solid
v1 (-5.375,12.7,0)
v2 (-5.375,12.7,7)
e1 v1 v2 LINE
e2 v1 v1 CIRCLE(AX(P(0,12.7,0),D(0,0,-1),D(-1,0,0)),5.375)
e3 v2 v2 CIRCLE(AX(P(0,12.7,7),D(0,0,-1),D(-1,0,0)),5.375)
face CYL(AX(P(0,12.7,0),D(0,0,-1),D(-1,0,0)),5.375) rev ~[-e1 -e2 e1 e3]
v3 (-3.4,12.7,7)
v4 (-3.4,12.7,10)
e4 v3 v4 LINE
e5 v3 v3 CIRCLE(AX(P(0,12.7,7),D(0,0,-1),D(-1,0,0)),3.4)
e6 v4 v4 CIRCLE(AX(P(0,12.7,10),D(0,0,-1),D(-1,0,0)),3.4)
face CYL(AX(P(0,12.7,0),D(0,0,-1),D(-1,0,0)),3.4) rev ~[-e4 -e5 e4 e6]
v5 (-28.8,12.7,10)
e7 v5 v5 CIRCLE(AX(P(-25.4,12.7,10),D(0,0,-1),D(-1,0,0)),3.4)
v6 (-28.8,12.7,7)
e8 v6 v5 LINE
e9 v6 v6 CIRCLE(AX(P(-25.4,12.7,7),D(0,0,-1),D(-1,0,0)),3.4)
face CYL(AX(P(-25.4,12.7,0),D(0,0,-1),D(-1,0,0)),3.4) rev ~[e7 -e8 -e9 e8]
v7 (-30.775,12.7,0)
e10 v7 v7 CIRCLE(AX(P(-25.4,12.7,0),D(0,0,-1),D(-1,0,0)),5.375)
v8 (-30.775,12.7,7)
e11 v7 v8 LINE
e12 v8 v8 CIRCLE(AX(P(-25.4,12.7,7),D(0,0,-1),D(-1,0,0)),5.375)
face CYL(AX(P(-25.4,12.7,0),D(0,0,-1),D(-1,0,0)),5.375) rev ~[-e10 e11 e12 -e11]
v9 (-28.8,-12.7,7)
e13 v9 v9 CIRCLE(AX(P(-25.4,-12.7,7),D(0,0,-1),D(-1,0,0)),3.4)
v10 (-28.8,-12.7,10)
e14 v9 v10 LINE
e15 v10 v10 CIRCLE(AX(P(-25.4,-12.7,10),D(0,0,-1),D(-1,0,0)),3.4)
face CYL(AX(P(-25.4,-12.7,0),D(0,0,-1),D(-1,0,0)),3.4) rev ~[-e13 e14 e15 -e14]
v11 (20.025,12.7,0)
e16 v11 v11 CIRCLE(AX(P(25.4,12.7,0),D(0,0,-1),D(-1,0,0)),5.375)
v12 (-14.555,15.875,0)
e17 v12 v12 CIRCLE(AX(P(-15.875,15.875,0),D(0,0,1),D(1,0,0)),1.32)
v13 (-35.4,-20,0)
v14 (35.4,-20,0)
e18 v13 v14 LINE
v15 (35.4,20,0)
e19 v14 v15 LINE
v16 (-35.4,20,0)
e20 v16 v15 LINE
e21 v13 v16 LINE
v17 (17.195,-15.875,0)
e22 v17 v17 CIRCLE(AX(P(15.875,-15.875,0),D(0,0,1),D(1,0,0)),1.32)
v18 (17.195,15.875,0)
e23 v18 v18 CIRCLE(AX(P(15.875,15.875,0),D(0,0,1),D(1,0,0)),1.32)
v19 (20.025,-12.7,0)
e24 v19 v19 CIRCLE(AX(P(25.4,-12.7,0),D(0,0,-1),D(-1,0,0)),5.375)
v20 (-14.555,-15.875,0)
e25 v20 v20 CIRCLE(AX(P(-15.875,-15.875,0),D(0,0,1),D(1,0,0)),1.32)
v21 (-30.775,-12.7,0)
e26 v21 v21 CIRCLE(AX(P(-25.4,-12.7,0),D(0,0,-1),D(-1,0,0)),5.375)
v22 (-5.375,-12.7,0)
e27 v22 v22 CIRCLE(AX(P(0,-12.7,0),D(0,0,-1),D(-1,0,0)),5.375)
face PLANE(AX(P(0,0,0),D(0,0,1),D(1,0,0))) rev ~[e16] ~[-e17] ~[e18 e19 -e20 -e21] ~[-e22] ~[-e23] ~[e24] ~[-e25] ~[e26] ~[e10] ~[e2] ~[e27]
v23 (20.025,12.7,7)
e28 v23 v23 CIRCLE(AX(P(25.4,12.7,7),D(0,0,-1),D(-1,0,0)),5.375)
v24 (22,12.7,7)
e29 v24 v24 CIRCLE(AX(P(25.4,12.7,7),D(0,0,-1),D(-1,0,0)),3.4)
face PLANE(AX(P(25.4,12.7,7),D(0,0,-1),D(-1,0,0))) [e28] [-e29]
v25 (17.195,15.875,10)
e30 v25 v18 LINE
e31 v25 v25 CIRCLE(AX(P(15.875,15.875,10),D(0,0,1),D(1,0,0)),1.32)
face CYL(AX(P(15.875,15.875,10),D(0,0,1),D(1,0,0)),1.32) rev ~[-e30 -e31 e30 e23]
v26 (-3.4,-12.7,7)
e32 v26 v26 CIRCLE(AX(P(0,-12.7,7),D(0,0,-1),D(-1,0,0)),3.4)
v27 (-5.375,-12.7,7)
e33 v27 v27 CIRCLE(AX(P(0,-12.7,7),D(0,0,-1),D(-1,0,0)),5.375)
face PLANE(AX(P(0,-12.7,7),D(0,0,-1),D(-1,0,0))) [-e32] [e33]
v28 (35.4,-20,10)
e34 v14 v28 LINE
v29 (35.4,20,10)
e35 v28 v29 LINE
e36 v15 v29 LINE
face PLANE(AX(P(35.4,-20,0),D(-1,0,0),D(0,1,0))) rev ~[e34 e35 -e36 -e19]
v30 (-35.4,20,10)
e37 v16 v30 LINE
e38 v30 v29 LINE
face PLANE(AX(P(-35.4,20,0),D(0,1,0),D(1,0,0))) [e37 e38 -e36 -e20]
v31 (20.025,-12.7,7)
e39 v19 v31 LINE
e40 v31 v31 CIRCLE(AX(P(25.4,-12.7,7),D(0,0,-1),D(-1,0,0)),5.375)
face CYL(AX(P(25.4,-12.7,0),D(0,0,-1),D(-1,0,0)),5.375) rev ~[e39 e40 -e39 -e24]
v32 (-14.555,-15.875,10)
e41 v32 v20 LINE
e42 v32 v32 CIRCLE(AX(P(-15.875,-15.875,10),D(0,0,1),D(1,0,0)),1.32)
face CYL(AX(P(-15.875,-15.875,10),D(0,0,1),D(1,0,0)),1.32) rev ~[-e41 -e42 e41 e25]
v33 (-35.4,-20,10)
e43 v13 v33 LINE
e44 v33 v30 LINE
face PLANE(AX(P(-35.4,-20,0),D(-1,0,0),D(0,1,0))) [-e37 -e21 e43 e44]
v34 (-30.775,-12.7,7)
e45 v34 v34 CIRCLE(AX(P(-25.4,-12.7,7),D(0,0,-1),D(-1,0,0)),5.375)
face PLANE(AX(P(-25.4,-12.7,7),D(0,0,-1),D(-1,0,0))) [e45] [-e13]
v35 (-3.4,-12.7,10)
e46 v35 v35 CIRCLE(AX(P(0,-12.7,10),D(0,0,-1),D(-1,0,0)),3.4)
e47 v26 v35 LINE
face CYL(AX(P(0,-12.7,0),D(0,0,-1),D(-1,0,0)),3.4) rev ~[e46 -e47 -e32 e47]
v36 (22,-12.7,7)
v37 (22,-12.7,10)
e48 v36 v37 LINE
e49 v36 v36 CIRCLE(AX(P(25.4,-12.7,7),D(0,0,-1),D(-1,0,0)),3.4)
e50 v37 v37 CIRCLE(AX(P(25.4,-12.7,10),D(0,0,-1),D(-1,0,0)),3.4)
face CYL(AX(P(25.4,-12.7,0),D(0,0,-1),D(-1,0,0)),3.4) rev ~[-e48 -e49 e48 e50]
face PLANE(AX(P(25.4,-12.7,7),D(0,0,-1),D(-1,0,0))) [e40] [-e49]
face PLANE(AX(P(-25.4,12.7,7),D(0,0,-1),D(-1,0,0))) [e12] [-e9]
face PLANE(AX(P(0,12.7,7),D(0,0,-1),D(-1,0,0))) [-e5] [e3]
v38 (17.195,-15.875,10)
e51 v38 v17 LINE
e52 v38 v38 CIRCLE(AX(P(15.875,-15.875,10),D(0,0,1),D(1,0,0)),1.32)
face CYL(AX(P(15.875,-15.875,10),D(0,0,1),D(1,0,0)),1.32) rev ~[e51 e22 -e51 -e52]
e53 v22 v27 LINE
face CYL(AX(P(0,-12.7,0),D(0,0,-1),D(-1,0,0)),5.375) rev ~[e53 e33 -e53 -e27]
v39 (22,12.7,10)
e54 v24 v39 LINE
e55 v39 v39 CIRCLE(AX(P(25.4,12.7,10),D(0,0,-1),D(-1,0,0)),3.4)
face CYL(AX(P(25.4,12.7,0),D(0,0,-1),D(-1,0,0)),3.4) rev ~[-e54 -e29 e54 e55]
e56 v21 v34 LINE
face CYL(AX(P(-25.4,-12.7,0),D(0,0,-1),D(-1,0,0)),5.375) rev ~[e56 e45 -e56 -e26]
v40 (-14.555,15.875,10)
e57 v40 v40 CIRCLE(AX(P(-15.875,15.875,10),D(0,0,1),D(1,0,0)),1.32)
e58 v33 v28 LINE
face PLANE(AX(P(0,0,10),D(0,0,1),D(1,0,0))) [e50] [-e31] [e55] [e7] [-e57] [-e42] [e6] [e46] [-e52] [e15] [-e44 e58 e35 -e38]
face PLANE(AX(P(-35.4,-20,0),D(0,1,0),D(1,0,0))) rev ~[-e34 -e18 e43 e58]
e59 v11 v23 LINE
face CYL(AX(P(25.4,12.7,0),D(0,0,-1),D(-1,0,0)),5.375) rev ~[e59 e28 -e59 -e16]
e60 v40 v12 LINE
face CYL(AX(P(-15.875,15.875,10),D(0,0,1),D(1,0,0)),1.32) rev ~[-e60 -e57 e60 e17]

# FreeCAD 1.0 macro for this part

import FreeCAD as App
import Part
import Sketcher

doc = App.newDocument("Part")
params = doc.addObject("Spreadsheet::Sheet", "Params")
for row, (alias, value) in enumerate([
    ("sketch1_height", "40 mm"),
    ("sketch1_width", "70.8 mm"),
    ("pad1_length", "10 mm"),
    ("sketch2_diameter", "2.64 mm"),
    ("sketch3_diameter", "6.8 mm"),
    ("sketch4_diameter", "10.75 mm"),
    ("pocket3_length", "7 mm"),
], start=1):
    params.set(f"A{row}", alias)
    params.set(f"B{row}", "=" + value)
    params.setAlias(f"B{row}", alias)

body = doc.addObject("PartDesign::Body", "Body")

sketch1 = body.newObject("Sketcher::SketchObject", "Sketch")
sketch1.AttachmentSupport = (doc.getObject("XY_Plane"), [""])
sketch1.MapMode = "FlatFace"
sketch1.addGeometry(Part.LineSegment(App.Vector(-35.4, 20, 0), App.Vector(-35.4, -20, 0)), False)
sketch1.addGeometry(Part.LineSegment(App.Vector(-35.4, -20, 0), App.Vector(35.4, -20, 0)), False)
sketch1.addGeometry(Part.LineSegment(App.Vector(35.4, -20, 0), App.Vector(35.4, 20, 0)), False)
sketch1.addGeometry(Part.LineSegment(App.Vector(35.4, 20, 0), App.Vector(-35.4, 20, 0)), False)
sketch1.addConstraint(Sketcher.Constraint("Coincident", 0, 2, 1, 1))
sketch1.addConstraint(Sketcher.Constraint("Coincident", 1, 2, 2, 1))
sketch1.addConstraint(Sketcher.Constraint("Coincident", 2, 2, 3, 1))
sketch1.addConstraint(Sketcher.Constraint("Coincident", 3, 2, 0, 1))
sketch1.addConstraint(Sketcher.Constraint("Vertical", 0))
sketch1.addConstraint(Sketcher.Constraint("Horizontal", 1))
sketch1.addConstraint(Sketcher.Constraint("Vertical", 2))
sketch1.addConstraint(Sketcher.Constraint("Horizontal", 3))
sketch1.addConstraint(Sketcher.Constraint("Symmetric", 0, 2, 2, 2, -1, 1))
sketch1.addConstraint(Sketcher.Constraint("DistanceY", 0, 2, 0, 1, 40.0))
sketch1.addConstraint(Sketcher.Constraint("DistanceX", 1, 1, 1, 2, 70.8))
sketch1.setExpression("Constraints[9]", "Params.sketch1_height")
sketch1.setExpression("Constraints[10]", "Params.sketch1_width")
pad1 = body.newObject("PartDesign::Pad", "Pad")
pad1.Profile = sketch1
pad1.setExpression("Length", "Params.pad1_length")

sketch2 = body.newObject("Sketcher::SketchObject", "Sketch001")
sketch2.AttachmentSupport = (doc.getObject("XY_Plane"), [""])
sketch2.MapMode = "FlatFace"
sketch2.AttachmentOffset = App.Placement(App.Vector(0, 0, 10), App.Rotation())
sketch2.addGeometry(Part.Circle(App.Vector(15.875, -15.875, 0), App.Vector(0, 0, 1), 1.32), False)
sketch2.addGeometry(Part.Circle(App.Vector(-15.875, -15.875, 0), App.Vector(0, 0, 1), 1.32), False)
sketch2.addGeometry(Part.Circle(App.Vector(-15.875, 15.875, 0), App.Vector(0, 0, 1), 1.32), False)
sketch2.addGeometry(Part.Circle(App.Vector(15.875, 15.875, 0), App.Vector(0, 0, 1), 1.32), False)
sketch2.addConstraint(Sketcher.Constraint("Equal", 0, 1))
sketch2.addConstraint(Sketcher.Constraint("Equal", 1, 2))
sketch2.addConstraint(Sketcher.Constraint("Equal", 2, 3))
sketch2.addConstraint(Sketcher.Constraint("Symmetric", 0, 3, 2, 3, -1, 1))
sketch2.addConstraint(Sketcher.Constraint("Symmetric", 1, 3, 3, 3, -1, 1))
sketch2.addConstraint(Sketcher.Constraint("Symmetric", 0, 3, 1, 3, -2))
sketch2.addConstraint(Sketcher.Constraint("Diameter", 0, 2.64))
sketch2.addConstraint(Sketcher.Constraint("DistanceX", 1, 3, 0, 3, 31.75))
sketch2.addConstraint(Sketcher.Constraint("DistanceY", 1, 3, 2, 3, 31.75))
sketch2.setExpression("Constraints[6]", "Params.sketch2_diameter")
pocket1 = body.newObject("PartDesign::Pocket", "Pocket")
pocket1.Profile = sketch2
pocket1.Type = "ThroughAll"

sketch3 = body.newObject("Sketcher::SketchObject", "Sketch002")
sketch3.AttachmentSupport = (doc.getObject("XY_Plane"), [""])
sketch3.MapMode = "FlatFace"
sketch3.addGeometry(Part.Circle(App.Vector(25.4, -12.7, 0), App.Vector(0, 0, 1), 3.4), False)
sketch3.addGeometry(Part.Circle(App.Vector(0, -12.7, 0), App.Vector(0, 0, 1), 3.4), False)
sketch3.addGeometry(Part.Circle(App.Vector(-25.4, -12.7, 0), App.Vector(0, 0, 1), 3.4), False)
sketch3.addGeometry(Part.Circle(App.Vector(0, 12.7, 0), App.Vector(0, 0, 1), 3.4), False)
sketch3.addGeometry(Part.Circle(App.Vector(-25.4, 12.7, 0), App.Vector(0, 0, 1), 3.4), False)
sketch3.addGeometry(Part.Circle(App.Vector(25.4, 12.7, 0), App.Vector(0, 0, 1), 3.4), False)
sketch3.addConstraint(Sketcher.Constraint("Equal", 0, 1))
sketch3.addConstraint(Sketcher.Constraint("Equal", 1, 2))
sketch3.addConstraint(Sketcher.Constraint("Equal", 2, 3))
sketch3.addConstraint(Sketcher.Constraint("Equal", 3, 4))
sketch3.addConstraint(Sketcher.Constraint("Equal", 4, 5))
sketch3.addConstraint(Sketcher.Constraint("Symmetric", 1, 3, 3, 3, -1, 1))
sketch3.addConstraint(Sketcher.Constraint("Symmetric", 0, 3, 4, 3, -1, 1))
sketch3.addConstraint(Sketcher.Constraint("Symmetric", 2, 3, 5, 3, -1, 1))
sketch3.addConstraint(Sketcher.Constraint("Symmetric", 0, 3, 2, 3, -2))
sketch3.addConstraint(Sketcher.Constraint("PointOnObject", 1, 3, -2))
sketch3.addConstraint(Sketcher.Constraint("Horizontal", 0, 3, 1, 3))
sketch3.addConstraint(Sketcher.Constraint("Diameter", 0, 6.8))
sketch3.addConstraint(Sketcher.Constraint("DistanceX", -1, 1, 0, 3, 25.4))
sketch3.addConstraint(Sketcher.Constraint("DistanceY", 0, 3, -1, 1, 12.7))
sketch3.setExpression("Constraints[11]", "Params.sketch3_diameter")
pocket2 = body.newObject("PartDesign::Pocket", "Pocket001")
pocket2.Profile = sketch3
pocket2.Type = "ThroughAll"
pocket2.Reversed = True

sketch4 = body.newObject("Sketcher::SketchObject", "Sketch003")
sketch4.AttachmentSupport = (doc.getObject("XY_Plane"), [""])
sketch4.MapMode = "FlatFace"
sketch4.addGeometry(Part.Circle(App.Vector(-25.4, -12.7, 0), App.Vector(0, 0, 1), 5.375), False)
sketch4.addGeometry(Part.Circle(App.Vector(0, -12.7, 0), App.Vector(0, 0, 1), 5.375), False)
sketch4.addGeometry(Part.Circle(App.Vector(25.4, -12.7, 0), App.Vector(0, 0, 1), 5.375), False)
sketch4.addGeometry(Part.Circle(App.Vector(0, 12.7, 0), App.Vector(0, 0, 1), 5.375), False)
sketch4.addGeometry(Part.Circle(App.Vector(25.4, 12.7, 0), App.Vector(0, 0, 1), 5.375), False)
sketch4.addGeometry(Part.Circle(App.Vector(-25.4, 12.7, 0), App.Vector(0, 0, 1), 5.375), False)
sketch4.addConstraint(Sketcher.Constraint("Equal", 0, 1))
sketch4.addConstraint(Sketcher.Constraint("Equal", 1, 2))
sketch4.addConstraint(Sketcher.Constraint("Equal", 2, 3))
sketch4.addConstraint(Sketcher.Constraint("Equal", 3, 4))
sketch4.addConstraint(Sketcher.Constraint("Equal", 4, 5))
sketch4.addConstraint(Sketcher.Constraint("Symmetric", 1, 3, 3, 3, -1, 1))
sketch4.addConstraint(Sketcher.Constraint("Symmetric", 0, 3, 4, 3, -1, 1))
sketch4.addConstraint(Sketcher.Constraint("Symmetric", 2, 3, 5, 3, -1, 1))
sketch4.addConstraint(Sketcher.Constraint("Symmetric", 0, 3, 2, 3, -2))
sketch4.addConstraint(Sketcher.Constraint("PointOnObject", 1, 3, -2))
sketch4.addConstraint(Sketcher.Constraint("Horizontal", 0, 3, 1, 3))
sketch4.addConstraint(Sketcher.Constraint("Diameter", 0, 10.75))
sketch4.addConstraint(Sketcher.Constraint("DistanceX", 0, 3, -1, 1, 25.4))
sketch4.addConstraint(Sketcher.Constraint("DistanceY", 0, 3, -1, 1, 12.7))
sketch4.setExpression("Constraints[11]", "Params.sketch4_diameter")
pocket3 = body.newObject("PartDesign::Pocket", "Pocket002")
pocket3.Profile = sketch4
pocket3.setExpression("Length", "Params.pocket3_length")
pocket3.Reversed = True

doc.recompute()
